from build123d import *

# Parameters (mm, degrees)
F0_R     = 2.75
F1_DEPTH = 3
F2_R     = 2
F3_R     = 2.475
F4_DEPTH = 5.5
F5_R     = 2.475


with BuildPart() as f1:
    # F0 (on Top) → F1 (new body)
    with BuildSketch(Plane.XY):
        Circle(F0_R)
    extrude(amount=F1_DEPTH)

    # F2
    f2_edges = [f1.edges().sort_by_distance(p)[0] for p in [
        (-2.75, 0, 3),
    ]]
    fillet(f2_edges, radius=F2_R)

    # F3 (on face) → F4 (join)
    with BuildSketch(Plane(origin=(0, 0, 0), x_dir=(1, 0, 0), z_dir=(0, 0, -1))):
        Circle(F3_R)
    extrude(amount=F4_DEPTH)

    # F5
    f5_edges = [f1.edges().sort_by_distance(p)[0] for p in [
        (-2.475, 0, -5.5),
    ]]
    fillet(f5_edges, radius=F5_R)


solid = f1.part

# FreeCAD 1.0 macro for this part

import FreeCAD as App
import Part
import Sketcher


def edges_at(feature, points):
    """Names of the edges that pass closest to the given points."""
    edges = feature.Shape.Edges
    near = lambda p: min(range(len(edges)), key=lambda i: edges[i].distToShape(Part.Vertex(*p))[0])
    return sorted({f"Edge{near(p) + 1}" for p in points})

doc = App.newDocument("Part")
body = doc.addObject("PartDesign::Body", "Body")

# Sketch on XY plane
sketch1 = body.newObject("Sketcher::SketchObject", "Sketch")
sketch1.AttachmentSupport = (doc.getObject("XY_Plane"), [""])
sketch1.MapMode = "FlatFace"
sketch1.addGeometry(Part.Circle(App.Vector(0, 0, 0), App.Vector(0, 0, 1), 2.8), False)
sketch1.addConstraint(Sketcher.Constraint("Coincident", 0, 3, -1, 1))
sketch1.addConstraint(Sketcher.Constraint("Diameter", 0, 5.5))
pad1 = body.newObject("PartDesign::Pad", "Pad")
pad1.Profile = sketch1
pad1.Length = 3
doc.recompute()

fillet = body.newObject("PartDesign::Fillet", "Fillet")
fillet.Base = (pad1, edges_at(pad1, [(-2.75, 0, 3)]))
fillet.Radius = 2

# Sketch on XY plane
sketch2 = body.newObject("Sketcher::SketchObject", "Sketch001")
sketch2.AttachmentSupport = (doc.getObject("XY_Plane"), [""])
sketch2.MapMode = "FlatFace"
sketch2.addGeometry(Part.Circle(App.Vector(0, 0, 0), App.Vector(0, 0, 1), 2.5), False)
sketch2.addConstraint(Sketcher.Constraint("Coincident", 0, 3, -1, 1))
sketch2.addConstraint(Sketcher.Constraint("Diameter", 0, 4.95))
pad2 = body.newObject("PartDesign::Pad", "Pad001")
pad2.Profile = sketch2
pad2.Length = 5.5
pad2.Reversed = True
doc.recompute()

fillet2 = body.newObject("PartDesign::Fillet", "Fillet001")
fillet2.Base = (pad2, edges_at(pad2, [(-2.475, 0, -5.5)]))
fillet2.Radius = 2.475

doc.recompute()
